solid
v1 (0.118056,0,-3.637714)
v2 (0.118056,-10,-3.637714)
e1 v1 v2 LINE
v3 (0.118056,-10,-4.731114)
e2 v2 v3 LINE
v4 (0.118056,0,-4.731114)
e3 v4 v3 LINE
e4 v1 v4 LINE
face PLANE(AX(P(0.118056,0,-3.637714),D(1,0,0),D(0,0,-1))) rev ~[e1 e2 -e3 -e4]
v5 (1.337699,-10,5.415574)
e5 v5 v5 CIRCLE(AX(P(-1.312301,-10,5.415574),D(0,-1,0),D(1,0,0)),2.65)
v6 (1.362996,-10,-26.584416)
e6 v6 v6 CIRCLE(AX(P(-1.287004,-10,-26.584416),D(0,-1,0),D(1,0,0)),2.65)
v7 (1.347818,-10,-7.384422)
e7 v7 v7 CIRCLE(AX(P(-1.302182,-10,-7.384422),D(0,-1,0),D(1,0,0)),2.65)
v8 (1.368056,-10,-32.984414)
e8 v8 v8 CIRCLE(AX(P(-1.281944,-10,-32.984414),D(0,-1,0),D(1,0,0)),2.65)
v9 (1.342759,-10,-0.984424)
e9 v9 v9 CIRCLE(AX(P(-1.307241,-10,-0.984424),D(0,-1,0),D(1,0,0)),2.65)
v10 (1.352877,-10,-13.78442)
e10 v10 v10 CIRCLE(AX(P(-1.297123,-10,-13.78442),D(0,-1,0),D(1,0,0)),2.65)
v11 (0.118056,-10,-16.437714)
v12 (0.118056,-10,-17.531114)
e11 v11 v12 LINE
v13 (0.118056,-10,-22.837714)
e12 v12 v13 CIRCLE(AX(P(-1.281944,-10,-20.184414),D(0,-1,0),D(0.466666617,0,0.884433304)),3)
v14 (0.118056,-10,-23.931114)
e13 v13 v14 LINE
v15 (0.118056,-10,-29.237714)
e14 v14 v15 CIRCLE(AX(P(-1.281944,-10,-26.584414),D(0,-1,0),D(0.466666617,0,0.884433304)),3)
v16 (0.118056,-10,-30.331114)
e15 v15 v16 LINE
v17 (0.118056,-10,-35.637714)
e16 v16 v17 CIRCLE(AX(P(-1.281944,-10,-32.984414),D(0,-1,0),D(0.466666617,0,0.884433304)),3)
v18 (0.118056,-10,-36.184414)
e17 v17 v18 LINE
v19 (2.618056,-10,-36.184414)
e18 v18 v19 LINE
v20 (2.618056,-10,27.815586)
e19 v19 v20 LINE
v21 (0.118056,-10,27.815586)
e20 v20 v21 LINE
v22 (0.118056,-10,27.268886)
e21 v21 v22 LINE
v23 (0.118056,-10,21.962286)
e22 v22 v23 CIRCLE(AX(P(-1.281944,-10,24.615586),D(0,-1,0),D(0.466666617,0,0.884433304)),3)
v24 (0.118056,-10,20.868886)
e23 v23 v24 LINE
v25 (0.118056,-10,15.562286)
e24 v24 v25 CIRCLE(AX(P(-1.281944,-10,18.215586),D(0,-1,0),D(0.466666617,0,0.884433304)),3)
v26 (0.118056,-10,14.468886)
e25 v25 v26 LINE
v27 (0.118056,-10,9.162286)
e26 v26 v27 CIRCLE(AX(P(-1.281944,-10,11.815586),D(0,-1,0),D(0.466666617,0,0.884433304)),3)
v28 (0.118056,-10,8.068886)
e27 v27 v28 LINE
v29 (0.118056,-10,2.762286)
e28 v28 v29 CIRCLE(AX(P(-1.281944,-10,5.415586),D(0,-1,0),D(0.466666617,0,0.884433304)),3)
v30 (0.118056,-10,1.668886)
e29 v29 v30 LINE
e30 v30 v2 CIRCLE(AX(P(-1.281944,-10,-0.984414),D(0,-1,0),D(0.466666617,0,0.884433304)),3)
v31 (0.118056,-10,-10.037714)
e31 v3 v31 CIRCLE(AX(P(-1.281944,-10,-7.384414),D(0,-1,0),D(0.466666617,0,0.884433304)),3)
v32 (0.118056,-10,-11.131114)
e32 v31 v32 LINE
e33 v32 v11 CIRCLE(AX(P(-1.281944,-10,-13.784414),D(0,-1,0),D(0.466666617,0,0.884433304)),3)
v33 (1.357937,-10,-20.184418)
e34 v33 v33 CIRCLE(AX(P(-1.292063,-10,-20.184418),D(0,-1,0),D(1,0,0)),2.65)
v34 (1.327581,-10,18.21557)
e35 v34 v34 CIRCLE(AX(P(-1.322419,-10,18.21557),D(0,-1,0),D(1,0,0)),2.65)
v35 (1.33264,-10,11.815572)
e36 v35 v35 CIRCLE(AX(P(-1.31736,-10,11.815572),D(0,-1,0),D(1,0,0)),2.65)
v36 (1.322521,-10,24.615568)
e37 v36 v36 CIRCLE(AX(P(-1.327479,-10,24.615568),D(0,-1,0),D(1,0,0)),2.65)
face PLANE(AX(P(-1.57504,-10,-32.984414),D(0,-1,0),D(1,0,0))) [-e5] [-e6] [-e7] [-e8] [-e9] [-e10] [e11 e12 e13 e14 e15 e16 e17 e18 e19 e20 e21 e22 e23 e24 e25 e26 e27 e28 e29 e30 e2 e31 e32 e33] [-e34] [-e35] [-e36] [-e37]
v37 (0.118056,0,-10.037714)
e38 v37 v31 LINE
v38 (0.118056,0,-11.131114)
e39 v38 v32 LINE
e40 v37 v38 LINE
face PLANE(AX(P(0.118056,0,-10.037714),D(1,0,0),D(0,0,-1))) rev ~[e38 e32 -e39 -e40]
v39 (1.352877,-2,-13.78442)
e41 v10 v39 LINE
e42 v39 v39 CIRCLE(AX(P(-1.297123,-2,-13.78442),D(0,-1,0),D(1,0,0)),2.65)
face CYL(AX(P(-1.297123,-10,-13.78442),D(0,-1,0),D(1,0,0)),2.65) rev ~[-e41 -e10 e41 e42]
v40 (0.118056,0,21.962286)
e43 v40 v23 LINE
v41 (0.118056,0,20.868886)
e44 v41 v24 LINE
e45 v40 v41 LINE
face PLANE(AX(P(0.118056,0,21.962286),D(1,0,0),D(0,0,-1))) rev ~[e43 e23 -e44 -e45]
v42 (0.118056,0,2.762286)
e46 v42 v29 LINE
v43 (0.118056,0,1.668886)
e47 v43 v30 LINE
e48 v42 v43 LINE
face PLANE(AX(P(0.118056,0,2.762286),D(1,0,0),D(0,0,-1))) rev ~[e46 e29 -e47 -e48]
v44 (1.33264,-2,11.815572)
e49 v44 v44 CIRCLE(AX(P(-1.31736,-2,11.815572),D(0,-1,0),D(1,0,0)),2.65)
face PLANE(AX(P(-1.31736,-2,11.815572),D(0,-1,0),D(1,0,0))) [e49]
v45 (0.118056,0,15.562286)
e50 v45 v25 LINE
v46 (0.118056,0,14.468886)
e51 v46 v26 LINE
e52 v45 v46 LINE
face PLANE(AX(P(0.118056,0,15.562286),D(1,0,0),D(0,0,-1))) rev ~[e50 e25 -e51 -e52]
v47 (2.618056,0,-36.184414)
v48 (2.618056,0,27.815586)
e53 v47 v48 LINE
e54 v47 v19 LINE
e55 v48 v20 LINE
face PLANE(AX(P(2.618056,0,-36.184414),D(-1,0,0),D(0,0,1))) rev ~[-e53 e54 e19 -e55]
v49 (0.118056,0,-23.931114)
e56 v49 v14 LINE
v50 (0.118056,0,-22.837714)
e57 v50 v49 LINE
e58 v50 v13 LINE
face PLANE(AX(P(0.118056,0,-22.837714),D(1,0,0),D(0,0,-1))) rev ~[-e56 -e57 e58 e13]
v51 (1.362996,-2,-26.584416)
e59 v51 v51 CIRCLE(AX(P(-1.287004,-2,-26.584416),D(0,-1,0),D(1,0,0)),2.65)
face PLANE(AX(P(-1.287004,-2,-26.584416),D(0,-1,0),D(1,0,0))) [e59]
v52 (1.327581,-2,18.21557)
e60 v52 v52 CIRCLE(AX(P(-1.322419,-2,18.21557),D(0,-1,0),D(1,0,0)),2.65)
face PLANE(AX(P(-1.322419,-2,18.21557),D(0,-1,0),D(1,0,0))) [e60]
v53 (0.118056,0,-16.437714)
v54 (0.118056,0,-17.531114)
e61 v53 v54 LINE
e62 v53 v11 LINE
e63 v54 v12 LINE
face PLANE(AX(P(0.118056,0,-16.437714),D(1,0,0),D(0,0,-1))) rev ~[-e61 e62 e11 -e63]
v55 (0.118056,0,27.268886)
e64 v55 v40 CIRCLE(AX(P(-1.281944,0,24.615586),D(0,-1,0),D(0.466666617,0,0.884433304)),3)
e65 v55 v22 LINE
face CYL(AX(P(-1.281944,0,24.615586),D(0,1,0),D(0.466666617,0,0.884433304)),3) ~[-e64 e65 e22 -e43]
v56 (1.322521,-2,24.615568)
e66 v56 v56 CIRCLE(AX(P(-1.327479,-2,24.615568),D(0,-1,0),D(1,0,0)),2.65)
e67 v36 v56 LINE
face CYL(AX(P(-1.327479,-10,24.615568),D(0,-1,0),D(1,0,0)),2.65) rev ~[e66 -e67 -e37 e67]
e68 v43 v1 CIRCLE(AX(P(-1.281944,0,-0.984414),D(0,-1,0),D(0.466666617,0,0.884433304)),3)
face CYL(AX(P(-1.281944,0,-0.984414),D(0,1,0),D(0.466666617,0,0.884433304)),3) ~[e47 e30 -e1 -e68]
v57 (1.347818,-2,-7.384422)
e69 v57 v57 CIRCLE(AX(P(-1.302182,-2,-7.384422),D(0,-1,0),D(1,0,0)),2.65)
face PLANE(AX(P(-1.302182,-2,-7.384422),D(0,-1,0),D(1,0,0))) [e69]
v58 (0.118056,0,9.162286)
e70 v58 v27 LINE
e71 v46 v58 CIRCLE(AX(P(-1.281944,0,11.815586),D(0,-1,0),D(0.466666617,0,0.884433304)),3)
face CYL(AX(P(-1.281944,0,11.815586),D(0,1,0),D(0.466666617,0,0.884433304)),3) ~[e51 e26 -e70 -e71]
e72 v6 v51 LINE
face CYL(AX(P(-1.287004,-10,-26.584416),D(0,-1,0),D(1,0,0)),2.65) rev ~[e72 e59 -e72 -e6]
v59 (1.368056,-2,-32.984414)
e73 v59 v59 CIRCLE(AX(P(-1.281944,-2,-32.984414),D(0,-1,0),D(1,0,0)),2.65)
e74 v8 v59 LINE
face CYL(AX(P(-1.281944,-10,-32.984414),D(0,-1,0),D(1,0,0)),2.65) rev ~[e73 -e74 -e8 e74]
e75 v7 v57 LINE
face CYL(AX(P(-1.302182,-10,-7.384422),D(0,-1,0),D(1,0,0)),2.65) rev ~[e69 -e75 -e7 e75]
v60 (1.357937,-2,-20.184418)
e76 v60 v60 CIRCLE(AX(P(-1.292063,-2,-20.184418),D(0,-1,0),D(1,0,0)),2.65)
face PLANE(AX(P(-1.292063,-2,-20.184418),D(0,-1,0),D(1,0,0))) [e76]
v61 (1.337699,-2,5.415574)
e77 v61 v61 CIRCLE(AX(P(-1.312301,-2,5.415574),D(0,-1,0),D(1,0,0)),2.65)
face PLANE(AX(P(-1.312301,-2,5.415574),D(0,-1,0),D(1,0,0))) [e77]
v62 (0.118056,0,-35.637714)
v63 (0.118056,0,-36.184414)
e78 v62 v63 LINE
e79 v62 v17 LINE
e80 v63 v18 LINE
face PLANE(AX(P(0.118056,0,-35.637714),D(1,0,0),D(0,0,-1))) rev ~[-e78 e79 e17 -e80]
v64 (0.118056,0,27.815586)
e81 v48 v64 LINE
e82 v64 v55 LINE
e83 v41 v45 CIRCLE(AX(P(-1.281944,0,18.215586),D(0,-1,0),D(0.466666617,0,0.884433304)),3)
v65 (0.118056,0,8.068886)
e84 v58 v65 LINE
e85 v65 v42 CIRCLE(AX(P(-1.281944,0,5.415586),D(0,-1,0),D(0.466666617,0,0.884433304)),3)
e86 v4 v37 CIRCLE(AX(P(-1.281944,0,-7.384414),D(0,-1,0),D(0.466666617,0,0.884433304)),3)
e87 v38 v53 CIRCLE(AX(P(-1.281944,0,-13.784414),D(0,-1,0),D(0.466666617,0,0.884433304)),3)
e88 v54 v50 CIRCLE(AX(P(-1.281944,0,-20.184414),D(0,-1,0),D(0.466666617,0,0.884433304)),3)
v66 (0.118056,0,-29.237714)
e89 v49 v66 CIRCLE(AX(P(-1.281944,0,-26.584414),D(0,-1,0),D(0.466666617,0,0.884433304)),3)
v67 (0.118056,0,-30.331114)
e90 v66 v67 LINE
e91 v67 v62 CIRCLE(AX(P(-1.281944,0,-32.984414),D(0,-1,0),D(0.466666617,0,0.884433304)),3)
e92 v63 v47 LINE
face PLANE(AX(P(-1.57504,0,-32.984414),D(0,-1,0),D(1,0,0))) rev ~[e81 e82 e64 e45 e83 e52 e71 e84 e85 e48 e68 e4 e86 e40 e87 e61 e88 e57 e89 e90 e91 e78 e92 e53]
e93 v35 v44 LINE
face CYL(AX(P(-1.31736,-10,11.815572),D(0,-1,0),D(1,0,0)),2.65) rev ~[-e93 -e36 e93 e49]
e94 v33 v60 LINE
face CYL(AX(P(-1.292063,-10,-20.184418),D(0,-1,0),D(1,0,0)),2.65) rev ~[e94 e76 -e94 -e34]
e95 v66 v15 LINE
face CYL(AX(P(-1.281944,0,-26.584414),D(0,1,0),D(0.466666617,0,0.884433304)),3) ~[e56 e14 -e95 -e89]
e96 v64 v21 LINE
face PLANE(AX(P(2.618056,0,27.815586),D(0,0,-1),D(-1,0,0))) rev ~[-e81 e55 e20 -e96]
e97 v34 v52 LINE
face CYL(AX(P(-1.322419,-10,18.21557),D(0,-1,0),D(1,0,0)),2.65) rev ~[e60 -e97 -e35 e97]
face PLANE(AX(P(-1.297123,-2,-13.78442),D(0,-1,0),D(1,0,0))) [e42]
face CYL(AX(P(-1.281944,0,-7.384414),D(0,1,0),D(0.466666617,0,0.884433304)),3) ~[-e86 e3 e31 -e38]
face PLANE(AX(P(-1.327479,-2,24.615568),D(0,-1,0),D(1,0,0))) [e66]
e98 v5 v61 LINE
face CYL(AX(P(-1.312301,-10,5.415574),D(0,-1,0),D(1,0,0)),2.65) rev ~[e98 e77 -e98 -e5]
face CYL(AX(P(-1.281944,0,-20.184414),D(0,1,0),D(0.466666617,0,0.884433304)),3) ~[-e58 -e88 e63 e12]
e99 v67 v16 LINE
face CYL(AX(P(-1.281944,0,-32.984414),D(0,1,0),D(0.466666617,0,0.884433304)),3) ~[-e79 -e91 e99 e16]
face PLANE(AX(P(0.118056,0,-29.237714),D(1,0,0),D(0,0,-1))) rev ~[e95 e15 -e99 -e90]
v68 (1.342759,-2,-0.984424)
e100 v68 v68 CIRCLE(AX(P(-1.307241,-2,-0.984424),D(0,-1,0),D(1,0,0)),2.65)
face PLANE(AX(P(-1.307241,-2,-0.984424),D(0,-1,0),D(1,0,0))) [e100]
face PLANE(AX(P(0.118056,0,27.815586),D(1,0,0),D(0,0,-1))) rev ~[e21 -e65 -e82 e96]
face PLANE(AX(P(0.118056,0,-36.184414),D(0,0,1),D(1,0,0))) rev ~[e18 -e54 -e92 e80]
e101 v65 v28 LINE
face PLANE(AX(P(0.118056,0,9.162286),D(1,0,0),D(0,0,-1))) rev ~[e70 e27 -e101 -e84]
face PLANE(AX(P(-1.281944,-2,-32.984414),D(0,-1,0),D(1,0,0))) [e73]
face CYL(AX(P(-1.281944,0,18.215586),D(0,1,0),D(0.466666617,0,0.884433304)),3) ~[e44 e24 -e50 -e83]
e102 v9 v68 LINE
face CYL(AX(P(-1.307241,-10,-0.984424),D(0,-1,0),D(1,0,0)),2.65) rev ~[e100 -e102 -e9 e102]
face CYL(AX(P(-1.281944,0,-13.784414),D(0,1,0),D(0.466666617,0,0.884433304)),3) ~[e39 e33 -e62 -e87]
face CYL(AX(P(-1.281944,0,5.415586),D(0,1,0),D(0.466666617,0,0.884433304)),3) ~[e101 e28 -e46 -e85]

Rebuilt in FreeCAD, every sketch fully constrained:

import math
import FreeCAD as App
import Part
import Sketcher

V = App.Vector

doc = App.newDocument("Part")
body = doc.addObject("PartDesign::Body", "Body")

# Sketch on XZ plane
sketch1 = body.newObject("Sketcher::SketchObject", "Sketch")
sketch1.AttachmentSupport = (doc.getObject("XZ_Plane"), [""])
sketch1.MapMode = "FlatFace"
sketch1.addGeometry(Part.ArcOfCircle(Part.Circle(V(-1.3, -33, 0), V(0, 0, 1), 3), math.radians(62), math.radians(298)), False)
sketch1.addGeometry(Part.LineSegment(V(0.1, -35.6, 0), V(0.1, -36.2, 0)), False)
sketch1.addGeometry(Part.LineSegment(V(0.1, -36.2, 0), V(2.6, -36.2, 0)), False)
sketch1.addGeometry(Part.LineSegment(V(2.6, -36.2, 0), V(2.6, 27.8, 0)), False)
sketch1.addGeometry(Part.LineSegment(V(2.6, 27.8, 0), V(0.1, 27.8, 0)), False)
sketch1.addGeometry(Part.LineSegment(V(0.1, 27.8, 0), V(0.1, 27.3, 0)), False)
sketch1.addGeometry(Part.ArcOfCircle(Part.Circle(V(-1.3, 24.6, 0), V(0, 0, 1), 3), math.radians(62), math.radians(298)), False)
sketch1.addGeometry(Part.LineSegment(V(0.1, 22, 0), V(0.1, 20.9, 0)), False)
sketch1.addGeometry(Part.ArcOfCircle(Part.Circle(V(-1.3, 18.2, 0), V(0, 0, 1), 3), math.radians(62), math.radians(298)), False)
sketch1.addGeometry(Part.LineSegment(V(0.1, 15.6, 0), V(0.1, 14.5, 0)), False)
sketch1.addGeometry(Part.ArcOfCircle(Part.Circle(V(-1.3, 11.8, 0), V(0, 0, 1), 3), math.radians(62), math.radians(298)), False)
sketch1.addGeometry(Part.LineSegment(V(0.1, 9.2, 0), V(0.1, 8.1, 0)), False)
sketch1.addGeometry(Part.ArcOfCircle(Part.Circle(V(-1.3, 5.4, 0), V(0, 0, 1), 3), math.radians(62), math.radians(298)), False)
sketch1.addGeometry(Part.LineSegment(V(0.1, 2.8, 0), V(0.1, 1.7, 0)), False)
sketch1.addGeometry(Part.ArcOfCircle(Part.Circle(V(-1.3, -1, 0), V(0, 0, 1), 3), math.radians(62), math.radians(298)), False)
sketch1.addGeometry(Part.LineSegment(V(0.1, -3.6, 0), V(0.1, -4.7, 0)), False)
sketch1.addGeometry(Part.ArcOfCircle(Part.Circle(V(-1.3, -7.4, 0), V(0, 0, 1), 3), math.radians(62), math.radians(298)), False)
sketch1.addGeometry(Part.LineSegment(V(0.1, -10, 0), V(0.1, -11.1, 0)), False)
sketch1.addGeometry(Part.ArcOfCircle(Part.Circle(V(-1.3, -13.8, 0), V(0, 0, 1), 3), math.radians(62), math.radians(298)), False)
sketch1.addGeometry(Part.LineSegment(V(0.1, -16.4, 0), V(0.1, -17.5, 0)), False)
sketch1.addGeometry(Part.ArcOfCircle(Part.Circle(V(-1.3, -20.2, 0), V(0, 0, 1), 3), math.radians(62), math.radians(298)), False)
sketch1.addGeometry(Part.LineSegment(V(0.1, -22.8, 0), V(0.1, -23.9, 0)), False)
sketch1.addGeometry(Part.ArcOfCircle(Part.Circle(V(-1.3, -26.6, 0), V(0, 0, 1), 3), math.radians(62), math.radians(298)), False)
sketch1.addGeometry(Part.LineSegment(V(0.1, -29.2, 0), V(0.1, -30.3, 0)), False)
sketch1.addConstraint(Sketcher.Constraint("Coincident", 0, 2, 1, 1))
sketch1.addConstraint(Sketcher.Constraint("Coincident", 1, 2, 2, 1))
sketch1.addConstraint(Sketcher.Constraint("Coincident", 2, 2, 3, 1))
sketch1.addConstraint(Sketcher.Constraint("Coincident", 3, 2, 4, 1))
sketch1.addConstraint(Sketcher.Constraint("Coincident", 4, 2, 5, 1))
sketch1.addConstraint(Sketcher.Constraint("Coincident", 5, 2, 6, 1))
sketch1.addConstraint(Sketcher.Constraint("Coincident", 6, 2, 7, 1))
sketch1.addConstraint(Sketcher.Constraint("Coincident", 7, 2, 8, 1))
sketch1.addConstraint(Sketcher.Constraint("Coincident", 8, 2, 9, 1))
sketch1.addConstraint(Sketcher.Constraint("Coincident", 9, 2, 10, 1))
sketch1.addConstraint(Sketcher.Constraint("Coincident", 10, 2, 11, 1))
sketch1.addConstraint(Sketcher.Constraint("Coincident", 11, 2, 12, 1))
sketch1.addConstraint(Sketcher.Constraint("Coincident", 12, 2, 13, 1))
sketch1.addConstraint(Sketcher.Constraint("Coincident", 13, 2, 14, 1))
sketch1.addConstraint(Sketcher.Constraint("Coincident", 14, 2, 15, 1))
sketch1.addConstraint(Sketcher.Constraint("Coincident", 15, 2, 16, 1))
sketch1.addConstraint(Sketcher.Constraint("Coincident", 16, 2, 17, 1))
sketch1.addConstraint(Sketcher.Constraint("Coincident", 17, 2, 18, 1))
sketch1.addConstraint(Sketcher.Constraint("Coincident", 18, 2, 19, 1))
sketch1.addConstraint(Sketcher.Constraint("Coincident", 19, 2, 20, 1))
sketch1.addConstraint(Sketcher.Constraint("Coincident", 20, 2, 21, 1))
sketch1.addConstraint(Sketcher.Constraint("Coincident", 21, 2, 22, 1))
sketch1.addConstraint(Sketcher.Constraint("Coincident", 22, 2, 23, 1))
sketch1.addConstraint(Sketcher.Constraint("Coincident", 23, 2, 0, 1))
sketch1.addConstraint(Sketcher.Constraint("Vertical", 1))
sketch1.addConstraint(Sketcher.Constraint("Horizontal", 2))
sketch1.addConstraint(Sketcher.Constraint("Vertical", 3))
sketch1.addConstraint(Sketcher.Constraint("Horizontal", 4))
sketch1.addConstraint(Sketcher.Constraint("Vertical", 5))
sketch1.addConstraint(Sketcher.Constraint("Vertical", 7))
sketch1.addConstraint(Sketcher.Constraint("Vertical", 9))
sketch1.addConstraint(Sketcher.Constraint("Vertical", 11))
sketch1.addConstraint(Sketcher.Constraint("Vertical", 13))
sketch1.addConstraint(Sketcher.Constraint("Vertical", 15))
sketch1.addConstraint(Sketcher.Constraint("Vertical", 17))
sketch1.addConstraint(Sketcher.Constraint("Vertical", 19))
sketch1.addConstraint(Sketcher.Constraint("Vertical", 21))
sketch1.addConstraint(Sketcher.Constraint("Vertical", 23))
sketch1.addConstraint(Sketcher.Constraint("Equal", 0, 6))
sketch1.addConstraint(Sketcher.Constraint("Equal", 6, 8))
sketch1.addConstraint(Sketcher.Constraint("Equal", 8, 10))
sketch1.addConstraint(Sketcher.Constraint("Equal", 10, 12))
sketch1.addConstraint(Sketcher.Constraint("Equal", 12, 14))
sketch1.addConstraint(Sketcher.Constraint("Equal", 14, 16))
sketch1.addConstraint(Sketcher.Constraint("Equal", 16, 18))
sketch1.addConstraint(Sketcher.Constraint("Equal", 18, 20))
sketch1.addConstraint(Sketcher.Constraint("Equal", 20, 22))
sketch1.addConstraint(Sketcher.Constraint("Vertical", 0, 3, 6, 3))
sketch1.addConstraint(Sketcher.Constraint("Vertical", 6, 3, 8, 3))
sketch1.addConstraint(Sketcher.Constraint("Vertical", 8, 3, 10, 3))
sketch1.addConstraint(Sketcher.Constraint("Vertical", 10, 3, 12, 3))
sketch1.addConstraint(Sketcher.Constraint("Vertical", 12, 3, 14, 3))
sketch1.addConstraint(Sketcher.Constraint("Vertical", 14, 3, 16, 3))
sketch1.addConstraint(Sketcher.Constraint("Vertical", 16, 3, 18, 3))
sketch1.addConstraint(Sketcher.Constraint("Vertical", 18, 3, 20, 3))
sketch1.addConstraint(Sketcher.Constraint("Vertical", 20, 3, 22, 3))
sketch1.addConstraint(Sketcher.Constraint("Vertical", 1, 2, 4, 2))
sketch1.addConstraint(Sketcher.Constraint("Vertical", 5, 2, 6, 2))
sketch1.addConstraint(Sketcher.Constraint("Vertical", 7, 2, 8, 2))
sketch1.addConstraint(Sketcher.Constraint("Vertical", 9, 2, 10, 2))
sketch1.addConstraint(Sketcher.Constraint("Vertical", 11, 2, 12, 2))
sketch1.addConstraint(Sketcher.Constraint("Vertical", 13, 2, 14, 2))
sketch1.addConstraint(Sketcher.Constraint("Vertical", 15, 2, 16, 2))
sketch1.addConstraint(Sketcher.Constraint("Vertical", 17, 2, 18, 2))
sketch1.addConstraint(Sketcher.Constraint("Vertical", 19, 2, 20, 2))
sketch1.addConstraint(Sketcher.Constraint("Vertical", 21, 2, 22, 2))
sketch1.addConstraint(Sketcher.Constraint("Equal", 1, 5))
sketch1.addConstraint(Sketcher.Constraint("Equal", 7, 9))
sketch1.addConstraint(Sketcher.Constraint("Equal", 9, 11))
sketch1.addConstraint(Sketcher.Constraint("Equal", 11, 13))
sketch1.addConstraint(Sketcher.Constraint("Equal", 13, 15))
sketch1.addConstraint(Sketcher.Constraint("Equal", 15, 17))
sketch1.addConstraint(Sketcher.Constraint("Equal", 17, 19))
sketch1.addConstraint(Sketcher.Constraint("Equal", 19, 21))
sketch1.addConstraint(Sketcher.Constraint("Equal", 21, 23))
sketch1.addConstraint(Sketcher.Constraint("Radius", 0, 3.0))
sketch1.addConstraint(Sketcher.Constraint("DistanceY", 3, 1, 3, 2, 64.0))
sketch1.addConstraint(Sketcher.Constraint("DistanceX", 2, 1, 2, 2, 2.5))
sketch1.addConstraint(Sketcher.Constraint("DistanceY", 0, 3, 14, 3, 32.0))
sketch1.addConstraint(Sketcher.Constraint("DistanceX", 0, 3, 0, 2, 1.4))
sketch1.addConstraint(Sketcher.Constraint("DistanceX", 0, 3, -1, 1, 1.281944))
sketch1.addConstraint(Sketcher.Constraint("DistanceY", 0, 3, -1, 1, 32.984414))
pad1 = body.newObject("PartDesign::Pad", "Pad")
pad1.Profile = sketch1
pad1.Length = 10

# Sketch on XZ plane
sketch2 = body.newObject("Sketcher::SketchObject", "Sketch001")
sketch2.AttachmentSupport = (doc.getObject("XZ_Plane"), [""])
sketch2.MapMode = "FlatFace"
sketch2.AttachmentOffset = App.Placement(V(0, 0, 10), App.Rotation())
sketch2.addGeometry(Part.Circle(V(-1.3, -33, 0), V(0, 0, 1), 2.6), False)
sketch2.addGeometry(Part.Circle(V(-1.3, -26.6, 0), V(0, 0, 1), 2.6), False)
sketch2.addGeometry(Part.Circle(V(-1.3, -20.2, 0), V(0, 0, 1), 2.6), False)
sketch2.addGeometry(Part.Circle(V(-1.3, -13.8, 0), V(0, 0, 1), 2.6), False)
sketch2.addGeometry(Part.Circle(V(-1.3, -7.4, 0), V(0, 0, 1), 2.6), False)
sketch2.addGeometry(Part.Circle(V(-1.3, -1, 0), V(0, 0, 1), 2.6), False)
sketch2.addGeometry(Part.Circle(V(-1.3, 5.4, 0), V(0, 0, 1), 2.6), False)
sketch2.addGeometry(Part.Circle(V(-1.3, 11.8, 0), V(0, 0, 1), 2.6), False)
sketch2.addGeometry(Part.Circle(V(-1.3, 18.2, 0), V(0, 0, 1), 2.6), False)
sketch2.addGeometry(Part.Circle(V(-1.3, 24.6, 0), V(0, 0, 1), 2.6), False)
sketch2.addConstraint(Sketcher.Constraint("Equal", 0, 1))
sketch2.addConstraint(Sketcher.Constraint("Equal", 1, 2))
sketch2.addConstraint(Sketcher.Constraint("Equal", 2, 3))
sketch2.addConstraint(Sketcher.Constraint("Equal", 3, 4))
sketch2.addConstraint(Sketcher.Constraint("Equal", 4, 5))
sketch2.addConstraint(Sketcher.Constraint("Equal", 5, 6))
sketch2.addConstraint(Sketcher.Constraint("Equal", 6, 7))
sketch2.addConstraint(Sketcher.Constraint("Equal", 7, 8))
sketch2.addConstraint(Sketcher.Constraint("Equal", 8, 9))
sketch2.addConstraint(Sketcher.Constraint("Diameter", 0, 5.3))
sketch2.addConstraint(Sketcher.Constraint("DistanceY", 3, 3, 4, 3, 6.399998))
sketch2.addConstraint(Sketcher.Constraint("DistanceX", 6, 3, -1, 1, 1.312301))
sketch2.addConstraint(Sketcher.Constraint("DistanceY", 2, 3, -1, 1, 20.184418))
sketch2.addConstraint(Sketcher.Constraint("DistanceY", 3, 3, -1, 1, 13.78442))
sketch2.addConstraint(Sketcher.Constraint("DistanceX", 5, 3, -1, 1, 1.307241))
sketch2.addConstraint(Sketcher.Constraint("DistanceX", 7, 3, -1, 1, 1.31736))
sketch2.addConstraint(Sketcher.Constraint("DistanceX", 8, 3, -1, 1, 1.322419))
sketch2.addConstraint(Sketcher.Constraint("DistanceY", -1, 1, 8, 3, 18.21557))
sketch2.addConstraint(Sketcher.Constraint("DistanceX", 9, 3, -1, 1, 1.327479))
sketch2.addConstraint(Sketcher.Constraint("DistanceX", 1, 3, 0, 3, 0.00506))
sketch2.addConstraint(Sketcher.Constraint("DistanceX", 2, 3, 1, 3, 0.005059))
sketch2.addConstraint(Sketcher.Constraint("DistanceX", 3, 3, 2, 3, 0.00506))
sketch2.addConstraint(Sketcher.Constraint("DistanceX", 4, 3, 3, 3, 0.005059))
sketch2.addConstraint(Sketcher.Constraint("DistanceX", 5, 3, 4, 3, 0.005059))
sketch2.addConstraint(Sketcher.Constraint("DistanceY", 0, 3, 5, 3, 31.99999))
sketch2.addConstraint(Sketcher.Constraint("DistanceY", 1, 3, 6, 3, 31.99999))
sketch2.addConstraint(Sketcher.Constraint("DistanceY", 2, 3, 7, 3, 31.99999))
sketch2.addConstraint(Sketcher.Constraint("DistanceY", 4, 3, 9, 3, 31.99999))
sketch2.addConstraint(Sketcher.Constraint("DistanceY", 0, 3, -1, 1, 32.984414))
sketch2.addConstraint(Sketcher.Constraint("DistanceY", 1, 3, -1, 1, 26.584416))
pocket1 = body.newObject("PartDesign::Pocket", "Pocket")
pocket1.Profile = sketch2
pocket1.Length = 8

doc.recompute()
